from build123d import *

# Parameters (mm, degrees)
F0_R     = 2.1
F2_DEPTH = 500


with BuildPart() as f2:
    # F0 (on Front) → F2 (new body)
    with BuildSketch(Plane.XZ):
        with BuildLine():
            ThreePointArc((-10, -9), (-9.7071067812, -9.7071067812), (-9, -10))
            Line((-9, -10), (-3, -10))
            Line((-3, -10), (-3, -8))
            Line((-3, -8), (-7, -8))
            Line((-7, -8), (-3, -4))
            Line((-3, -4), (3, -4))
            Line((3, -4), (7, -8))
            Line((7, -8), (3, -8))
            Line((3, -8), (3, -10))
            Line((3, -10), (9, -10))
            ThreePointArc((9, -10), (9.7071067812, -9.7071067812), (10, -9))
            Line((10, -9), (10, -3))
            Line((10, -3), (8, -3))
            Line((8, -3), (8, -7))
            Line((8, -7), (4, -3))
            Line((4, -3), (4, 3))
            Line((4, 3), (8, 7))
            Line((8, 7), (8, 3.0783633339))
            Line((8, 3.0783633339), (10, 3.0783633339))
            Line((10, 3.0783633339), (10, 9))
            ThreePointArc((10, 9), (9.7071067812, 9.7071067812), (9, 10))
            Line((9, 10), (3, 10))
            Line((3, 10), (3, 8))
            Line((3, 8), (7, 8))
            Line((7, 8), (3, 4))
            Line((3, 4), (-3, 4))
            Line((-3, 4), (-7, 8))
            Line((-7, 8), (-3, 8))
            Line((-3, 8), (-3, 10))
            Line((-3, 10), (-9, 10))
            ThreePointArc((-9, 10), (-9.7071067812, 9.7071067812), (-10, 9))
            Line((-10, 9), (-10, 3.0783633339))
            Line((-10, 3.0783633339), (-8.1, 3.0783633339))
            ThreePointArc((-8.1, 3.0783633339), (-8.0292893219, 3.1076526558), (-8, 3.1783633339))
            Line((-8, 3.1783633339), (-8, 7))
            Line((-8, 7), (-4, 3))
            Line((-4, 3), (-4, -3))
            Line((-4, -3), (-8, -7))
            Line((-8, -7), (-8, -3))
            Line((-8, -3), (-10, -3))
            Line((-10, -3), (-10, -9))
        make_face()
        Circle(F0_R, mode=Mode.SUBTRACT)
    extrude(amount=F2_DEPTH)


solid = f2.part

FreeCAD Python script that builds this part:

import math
import FreeCAD as App
import Part
import Sketcher
from FreeCAD import Vector

doc = App.newDocument("Part")
body = doc.addObject("PartDesign::Body", "Body")

# Sketch on XZ plane
sketch1 = body.newObject("Sketcher::SketchObject", "Sketch")
sketch1.AttachmentSupport = (doc.getObject("XZ_Plane"), [""])
sketch1.MapMode = "FlatFace"
sketch1.addGeometry(Part.ArcOfCircle(Part.Circle(Vector(-9, -9, 0), Vector(0, 0, 1), 1), math.radians(180), math.radians(270)), False)
sketch1.addGeometry(Part.LineSegment(Vector(-9, -10, 0), Vector(-3, -10, 0)), False)
sketch1.addGeometry(Part.LineSegment(Vector(-3, -10, 0), Vector(-3, -8, 0)), False)
sketch1.addGeometry(Part.LineSegment(Vector(-3, -8, 0), Vector(-7, -8, 0)), False)
sketch1.addGeometry(Part.LineSegment(Vector(-7, -8, 0), Vector(-3, -4, 0)), False)
sketch1.addGeometry(Part.LineSegment(Vector(-3, -4, 0), Vector(3, -4, 0)), False)
sketch1.addGeometry(Part.LineSegment(Vector(3, -4, 0), Vector(7, -8, 0)), False)
sketch1.addGeometry(Part.LineSegment(Vector(7, -8, 0), Vector(3, -8, 0)), False)
sketch1.addGeometry(Part.LineSegment(Vector(3, -8, 0), Vector(3, -10, 0)), False)
sketch1.addGeometry(Part.LineSegment(Vector(3, -10, 0), Vector(9, -10, 0)), False)
sketch1.addGeometry(Part.ArcOfCircle(Part.Circle(Vector(9, -9, 0), Vector(0, 0, 1), 1), math.radians(-90), math.radians(0)), False)
sketch1.addGeometry(Part.LineSegment(Vector(10, -9, 0), Vector(10, -3, 0)), False)
sketch1.addGeometry(Part.LineSegment(Vector(10, -3, 0), Vector(8, -3, 0)), False)
sketch1.addGeometry(Part.LineSegment(Vector(8, -3, 0), Vector(8, -7, 0)), False)
sketch1.addGeometry(Part.LineSegment(Vector(8, -7, 0), Vector(4, -3, 0)), False)
sketch1.addGeometry(Part.LineSegment(Vector(4, -3, 0), Vector(4, 3, 0)), False)
sketch1.addGeometry(Part.LineSegment(Vector(4, 3, 0), Vector(8, 7, 0)), False)
sketch1.addGeometry(Part.LineSegment(Vector(8, 7, 0), Vector(8, 3.08, 0)), False)
sketch1.addGeometry(Part.LineSegment(Vector(8, 3.08, 0), Vector(10, 3.08, 0)), False)
sketch1.addGeometry(Part.LineSegment(Vector(10, 3.08, 0), Vector(10, 9, 0)), False)
sketch1.addGeometry(Part.ArcOfCircle(Part.Circle(Vector(9, 9, 0), Vector(0, 0, 1), 1), math.radians(0), math.radians(90)), False)
sketch1.addGeometry(Part.LineSegment(Vector(9, 10, 0), Vector(3, 10, 0)), False)
sketch1.addGeometry(Part.LineSegment(Vector(3, 10, 0), Vector(3, 8, 0)), False)
sketch1.addGeometry(Part.LineSegment(Vector(3, 8, 0), Vector(7, 8, 0)), False)
sketch1.addGeometry(Part.LineSegment(Vector(7, 8, 0), Vector(3, 4, 0)), False)
sketch1.addGeometry(Part.LineSegment(Vector(3, 4, 0), Vector(-3, 4, 0)), False)
sketch1.addGeometry(Part.LineSegment(Vector(-3, 4, 0), Vector(-7, 8, 0)), False)
sketch1.addGeometry(Part.LineSegment(Vector(-7, 8, 0), Vector(-3, 8, 0)), False)
sketch1.addGeometry(Part.LineSegment(Vector(-3, 8, 0), Vector(-3, 10, 0)), False)
sketch1.addGeometry(Part.LineSegment(Vector(-3, 10, 0), Vector(-9, 10, 0)), False)
sketch1.addGeometry(Part.ArcOfCircle(Part.Circle(Vector(-9, 9, 0), Vector(0, 0, 1), 1), math.radians(90), math.radians(180)), False)
sketch1.addGeometry(Part.LineSegment(Vector(-10, 9, 0), Vector(-10, 3.08, 0)), False)
sketch1.addGeometry(Part.LineSegment(Vector(-10, 3.08, 0), Vector(-8.1, 3.08, 0)), False)
sketch1.addGeometry(Part.ArcOfCircle(Part.Circle(Vector(-8.1, 3.18, 0), Vector(0, 0, 1), 0.1), math.radians(-90), math.radians(0)), False)
sketch1.addGeometry(Part.LineSegment(Vector(-8, 3.18, 0), Vector(-8, 7, 0)), False)
sketch1.addGeometry(Part.LineSegment(Vector(-8, 7, 0), Vector(-4, 3, 0)), False)
sketch1.addGeometry(Part.LineSegment(Vector(-4, 3, 0), Vector(-4, -3, 0)), False)
sketch1.addGeometry(Part.LineSegment(Vector(-4, -3, 0), Vector(-8, -7, 0)), False)
sketch1.addGeometry(Part.LineSegment(Vector(-8, -7, 0), Vector(-8, -3, 0)), False)
sketch1.addGeometry(Part.LineSegment(Vector(-8, -3, 0), Vector(-10, -3, 0)), False)
sketch1.addGeometry(Part.LineSegment(Vector(-10, -3, 0), Vector(-10, -9, 0)), False)
sketch1.addGeometry(Part.Circle(Vector(0, 0, 0), Vector(0, 0, 1), 2.1), False)
sketch1.addConstraint(Sketcher.Constraint("Tangent", 0, 2, 1, 1))
sketch1.addConstraint(Sketcher.Constraint("Coincident", 1, 2, 2, 1))
sketch1.addConstraint(Sketcher.Constraint("Coincident", 2, 2, 3, 1))
sketch1.addConstraint(Sketcher.Constraint("Coincident", 3, 2, 4, 1))
sketch1.addConstraint(Sketcher.Constraint("Coincident", 4, 2, 5, 1))
sketch1.addConstraint(Sketcher.Constraint("Coincident", 5, 2, 6, 1))
sketch1.addConstraint(Sketcher.Constraint("Coincident", 6, 2, 7, 1))
sketch1.addConstraint(Sketcher.Constraint("Coincident", 7, 2, 8, 1))
sketch1.addConstraint(Sketcher.Constraint("Coincident", 8, 2, 9, 1))
sketch1.addConstraint(Sketcher.Constraint("Tangent", 9, 2, 10, 1))
sketch1.addConstraint(Sketcher.Constraint("Tangent", 10, 2, 11, 1))
sketch1.addConstraint(Sketcher.Constraint("Coincident", 11, 2, 12, 1))
sketch1.addConstraint(Sketcher.Constraint("Coincident", 12, 2, 13, 1))
sketch1.addConstraint(Sketcher.Constraint("Coincident", 13, 2, 14, 1))
sketch1.addConstraint(Sketcher.Constraint("Coincident", 14, 2, 15, 1))
sketch1.addConstraint(Sketcher.Constraint("Coincident", 15, 2, 16, 1))
sketch1.addConstraint(Sketcher.Constraint("Coincident", 16, 2, 17, 1))
sketch1.addConstraint(Sketcher.Constraint("Coincident", 17, 2, 18, 1))
sketch1.addConstraint(Sketcher.Constraint("Coincident", 18, 2, 19, 1))
sketch1.addConstraint(Sketcher.Constraint("Tangent", 19, 2, 20, 1))
sketch1.addConstraint(Sketcher.Constraint("Tangent", 20, 2, 21, 1))
sketch1.addConstraint(Sketcher.Constraint("Coincident", 21, 2, 22, 1))
sketch1.addConstraint(Sketcher.Constraint("Coincident", 22, 2, 23, 1))
sketch1.addConstraint(Sketcher.Constraint("Coincident", 23, 2, 24, 1))
sketch1.addConstraint(Sketcher.Constraint("Coincident", 24, 2, 25, 1))
sketch1.addConstraint(Sketcher.Constraint("Coincident", 25, 2, 26, 1))
sketch1.addConstraint(Sketcher.Constraint("Coincident", 26, 2, 27, 1))
sketch1.addConstraint(Sketcher.Constraint("Coincident", 27, 2, 28, 1))
sketch1.addConstraint(Sketcher.Constraint("Coincident", 28, 2, 29, 1))
sketch1.addConstraint(Sketcher.Constraint("Tangent", 29, 2, 30, 1))
sketch1.addConstraint(Sketcher.Constraint("Tangent", 30, 2, 31, 1))
sketch1.addConstraint(Sketcher.Constraint("Coincident", 31, 2, 32, 1))
sketch1.addConstraint(Sketcher.Constraint("Tangent", 32, 2, 33, 1))
sketch1.addConstraint(Sketcher.Constraint("Tangent", 33, 2, 34, 1))
sketch1.addConstraint(Sketcher.Constraint("Coincident", 34, 2, 35, 1))
sketch1.addConstraint(Sketcher.Constraint("Coincident", 35, 2, 36, 1))
sketch1.addConstraint(Sketcher.Constraint("Coincident", 36, 2, 37, 1))
sketch1.addConstraint(Sketcher.Constraint("Coincident", 37, 2, 38, 1))
sketch1.addConstraint(Sketcher.Constraint("Coincident", 38, 2, 39, 1))
sketch1.addConstraint(Sketcher.Constraint("Coincident", 39, 2, 40, 1))
sketch1.addConstraint(Sketcher.Constraint("Tangent", 40, 2, 0, 1))
sketch1.addConstraint(Sketcher.Constraint("Horizontal", 1))
sketch1.addConstraint(Sketcher.Constraint("Vertical", 2))
sketch1.addConstraint(Sketcher.Constraint("Horizontal", 3))
sketch1.addConstraint(Sketcher.Constraint("Horizontal", 5))
sketch1.addConstraint(Sketcher.Constraint("Horizontal", 7))
sketch1.addConstraint(Sketcher.Constraint("Vertical", 8))
sketch1.addConstraint(Sketcher.Constraint("Horizontal", 9))
sketch1.addConstraint(Sketcher.Constraint("Vertical", 11))
sketch1.addConstraint(Sketcher.Constraint("Horizontal", 12))
sketch1.addConstraint(Sketcher.Constraint("Vertical", 13))
sketch1.addConstraint(Sketcher.Constraint("Vertical", 15))
sketch1.addConstraint(Sketcher.Constraint("Vertical", 17))
sketch1.addConstraint(Sketcher.Constraint("Horizontal", 18))
sketch1.addConstraint(Sketcher.Constraint("Vertical", 19))
sketch1.addConstraint(Sketcher.Constraint("Horizontal", 21))
sketch1.addConstraint(Sketcher.Constraint("Vertical", 22))
sketch1.addConstraint(Sketcher.Constraint("Horizontal", 23))
sketch1.addConstraint(Sketcher.Constraint("Horizontal", 25))
sketch1.addConstraint(Sketcher.Constraint("Horizontal", 27))
sketch1.addConstraint(Sketcher.Constraint("Vertical", 28))
sketch1.addConstraint(Sketcher.Constraint("Horizontal", 29))
sketch1.addConstraint(Sketcher.Constraint("Vertical", 31))
sketch1.addConstraint(Sketcher.Constraint("Horizontal", 32))
sketch1.addConstraint(Sketcher.Constraint("Vertical", 34))
sketch1.addConstraint(Sketcher.Constraint("Vertical", 36))
sketch1.addConstraint(Sketcher.Constraint("Vertical", 38))
sketch1.addConstraint(Sketcher.Constraint("Horizontal", 39))
sketch1.addConstraint(Sketcher.Constraint("Vertical", 40))
sketch1.addConstraint(Sketcher.Constraint("Coincident", 41, 3, -1, 1))
sketch1.addConstraint(Sketcher.Constraint("Equal", 0, 10))
sketch1.addConstraint(Sketcher.Constraint("Equal", 10, 20))
sketch1.addConstraint(Sketcher.Constraint("Equal", 20, 30))
sketch1.addConstraint(Sketcher.Constraint("Symmetric", 0, 3, 20, 3, -1, 1))
sketch1.addConstraint(Sketcher.Constraint("Symmetric", 10, 3, 30, 3, -1, 1))
sketch1.addConstraint(Sketcher.Constraint("Symmetric", 2, 2, 22, 2, -1, 1))
sketch1.addConstraint(Sketcher.Constraint("Symmetric", 4, 2, 24, 2, -1, 1))
sketch1.addConstraint(Sketcher.Constraint("Symmetric", 6, 2, 26, 2, -1, 1))
sketch1.addConstraint(Sketcher.Constraint("Symmetric", 13, 2, 34, 2, -1, 1))
sketch1.addConstraint(Sketcher.Constraint("Symmetric", 14, 2, 35, 2, -1, 1))
sketch1.addConstraint(Sketcher.Constraint("Symmetric", 16, 2, 37, 2, -1, 1))
sketch1.addConstraint(Sketcher.Constraint("Symmetric", 0, 3, 10, 3, -2))
sketch1.addConstraint(Sketcher.Constraint("Symmetric", 3, 2, 6, 2, -2))
sketch1.addConstraint(Sketcher.Constraint("Symmetric", 16, 2, 34, 2, -2))
sketch1.addConstraint(Sketcher.Constraint("Perpendicular", 4, 6))
sketch1.addConstraint(Sketcher.Constraint("Parallel", 6, 14))
sketch1.addConstraint(Sketcher.Constraint("Perpendicular", 14, 16))
sketch1.addConstraint(Sketcher.Constraint("Parallel", 16, 24))
sketch1.addConstraint(Sketcher.Constraint("Perpendicular", 24, 26))
sketch1.addConstraint(Sketcher.Constraint("Perpendicular", 35, 37))
sketch1.addConstraint(Sketcher.Constraint("Horizontal", 12, 2, 14, 2))
sketch1.addConstraint(Sketcher.Constraint("Horizontal", 18, 2, 31, 2))
sketch1.addConstraint(Sketcher.Constraint("Horizontal", 15, 2, 35, 2))
sketch1.addConstraint(Sketcher.Constraint("Horizontal", 36, 2, 38, 2))
sketch1.addConstraint(Sketcher.Constraint("Vertical", 2, 2, 4, 2))
sketch1.addConstraint(Sketcher.Constraint("Vertical", 5, 2, 7, 2))
sketch1.addConstraint(Sketcher.Constraint("Vertical", 25, 2, 27, 2))
sketch1.addConstraint(Sketcher.Constraint("Equal", 1, 5))
sketch1.addConstraint(Sketcher.Constraint("Equal", 39, 2))
sketch1.addConstraint(Sketcher.Constraint("Equal", 29, 11))
sketch1.addConstraint(Sketcher.Constraint("Equal", 27, 13))
sketch1.addConstraint(Sketcher.Constraint("Equal", 11, 15))
sketch1.addConstraint(Sketcher.Constraint("Radius", 0, 1.0))
sketch1.addConstraint(Sketcher.Constraint("Diameter", 41, 4.2))
sketch1.addConstraint(Sketcher.Constraint("Radius", 33, 0.1))
sketch1.addConstraint(Sketcher.Constraint("DistanceX", 1, 1, 1, 2, 6.0))
sketch1.addConstraint(Sketcher.Constraint("DistanceX", 3, 2, 3, 1, 4.0))
sketch1.addConstraint(Sketcher.Constraint("DistanceX", 12, 2, 12, 1, 2.0))
sketch1.addConstraint(Sketcher.Constraint("DistanceY", 17, 2, 17, 1, 3.921637))
pad1 = body.newObject("PartDesign::Pad", "Pad")
pad1.Profile = sketch1
pad1.Length = 500

doc.recompute()
